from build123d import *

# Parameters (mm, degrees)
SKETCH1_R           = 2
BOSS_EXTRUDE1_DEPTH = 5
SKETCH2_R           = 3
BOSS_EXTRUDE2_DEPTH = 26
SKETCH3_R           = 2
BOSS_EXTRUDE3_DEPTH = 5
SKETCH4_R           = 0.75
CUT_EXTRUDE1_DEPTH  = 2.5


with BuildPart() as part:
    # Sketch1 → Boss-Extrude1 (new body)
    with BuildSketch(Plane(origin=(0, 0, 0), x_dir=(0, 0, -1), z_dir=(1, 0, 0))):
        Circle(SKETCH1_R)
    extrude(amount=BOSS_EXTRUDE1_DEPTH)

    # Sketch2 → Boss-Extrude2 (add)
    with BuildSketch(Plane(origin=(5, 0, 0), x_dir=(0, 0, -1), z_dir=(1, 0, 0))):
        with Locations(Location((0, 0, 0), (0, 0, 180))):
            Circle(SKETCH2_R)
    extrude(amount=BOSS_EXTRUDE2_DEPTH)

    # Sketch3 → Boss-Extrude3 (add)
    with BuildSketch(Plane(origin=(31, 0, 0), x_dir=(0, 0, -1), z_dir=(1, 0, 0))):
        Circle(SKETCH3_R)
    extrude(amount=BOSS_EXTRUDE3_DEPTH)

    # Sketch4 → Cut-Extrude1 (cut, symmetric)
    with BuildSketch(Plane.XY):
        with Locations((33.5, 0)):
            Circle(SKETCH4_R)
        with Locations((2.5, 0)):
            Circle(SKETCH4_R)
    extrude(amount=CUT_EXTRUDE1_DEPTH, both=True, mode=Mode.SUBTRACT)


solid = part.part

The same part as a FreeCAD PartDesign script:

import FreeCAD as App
import Part
import Sketcher
from FreeCAD import Vector
Q = App.Units.Quantity

doc = App.newDocument("Part")
body = doc.addObject("PartDesign::Body", "Body")

# Sketch on YZ plane
sketch1 = body.newObject("Sketcher::SketchObject", "Sketch")
sketch1.AttachmentSupport = (doc.getObject("YZ_Plane"), [""])
sketch1.MapMode = "FlatFace"
sketch1.addGeometry(Part.Circle(Vector(0, 0, 0), Vector(0, 0, 1), 2), False)
sketch1.addConstraint([
    Sketcher.Constraint("Coincident", 0, 3, -1, 1),
    Sketcher.Constraint("Diameter", 0, Q("4 mm")),
])
pad1 = body.newObject("PartDesign::Pad", "Pad")
pad1.Profile = sketch1
pad1.Length = 5

# Sketch on YZ plane
sketch2 = body.newObject("Sketcher::SketchObject", "Sketch001")
sketch2.AttachmentSupport = (doc.getObject("YZ_Plane"), [""])
sketch2.MapMode = "FlatFace"
sketch2.AttachmentOffset = App.Placement(Vector(0, 0, 5), App.Rotation())
sketch2.addGeometry(Part.Circle(Vector(0, 0, 0), Vector(0, 0, 1), 3), False)
sketch2.addConstraint([
    Sketcher.Constraint("Coincident", 0, 3, -1, 1),
    Sketcher.Constraint("Diameter", 0, Q("6 mm")),
])
pad2 = body.newObject("PartDesign::Pad", "Pad001")
pad2.Profile = sketch2
pad2.Length = 26

# Sketch on YZ plane
sketch3 = body.newObject("Sketcher::SketchObject", "Sketch002")
sketch3.AttachmentSupport = (doc.getObject("YZ_Plane"), [""])
sketch3.MapMode = "FlatFace"
sketch3.AttachmentOffset = App.Placement(Vector(0, 0, 31), App.Rotation())
sketch3.addGeometry(Part.Circle(Vector(0, 0, 0), Vector(0, 0, 1), 2), False)
sketch3.addConstraint([
    Sketcher.Constraint("Coincident", 0, 3, -1, 1),
    Sketcher.Constraint("Diameter", 0, Q("4 mm")),
])
pad3 = body.newObject("PartDesign::Pad", "Pad002")
pad3.Profile = sketch3
pad3.Length = 5

# Sketch on XY plane
sketch4 = body.newObject("Sketcher::SketchObject", "Sketch003")
sketch4.AttachmentSupport = (doc.getObject("XY_Plane"), [""])
sketch4.MapMode = "FlatFace"
sketch4.addGeometry([
    Part.Circle(Vector(33.5, 0, 0), Vector(0, 0, 1), 0.8),
    Part.Circle(Vector(2.5, 0, 0), Vector(0, 0, 1), 0.8),
], False)
sketch4.addConstraint([
    Sketcher.Constraint("Equal", 0, 1),
    Sketcher.Constraint("PointOnObject", 0, 3, -1),
    Sketcher.Constraint("PointOnObject", 1, 3, -1),
    Sketcher.Constraint("Diameter", 0, Q("1.5 mm")),
    Sketcher.Constraint("DistanceX", 1, 3, 0, 3, Q("31 mm")),
    Sketcher.Constraint("DistanceX", -1, 1, 0, 3, Q("33.5 mm")),
])
pocket1 = body.newObject("PartDesign::Pocket", "Pocket")
pocket1.Profile = sketch4
pocket1.Length = 5
pocket1.Midplane = True

doc.recompute()
